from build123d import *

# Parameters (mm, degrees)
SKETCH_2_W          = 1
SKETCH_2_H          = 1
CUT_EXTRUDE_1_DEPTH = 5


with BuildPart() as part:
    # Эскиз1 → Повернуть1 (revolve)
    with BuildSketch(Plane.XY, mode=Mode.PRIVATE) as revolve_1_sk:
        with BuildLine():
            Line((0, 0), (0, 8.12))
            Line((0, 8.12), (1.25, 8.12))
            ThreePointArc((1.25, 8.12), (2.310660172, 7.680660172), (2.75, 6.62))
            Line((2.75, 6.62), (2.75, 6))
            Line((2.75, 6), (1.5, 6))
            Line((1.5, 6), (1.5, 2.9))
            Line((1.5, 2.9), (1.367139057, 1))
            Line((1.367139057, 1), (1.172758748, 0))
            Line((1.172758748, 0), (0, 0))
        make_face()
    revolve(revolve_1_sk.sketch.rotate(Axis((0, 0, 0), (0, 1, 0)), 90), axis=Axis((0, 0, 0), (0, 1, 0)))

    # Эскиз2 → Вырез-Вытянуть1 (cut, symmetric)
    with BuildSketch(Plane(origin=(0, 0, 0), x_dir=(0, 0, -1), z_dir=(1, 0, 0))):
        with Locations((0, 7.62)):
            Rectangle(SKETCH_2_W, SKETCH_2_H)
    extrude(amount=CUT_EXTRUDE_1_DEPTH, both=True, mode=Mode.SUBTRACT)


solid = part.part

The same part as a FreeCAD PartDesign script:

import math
import FreeCAD as App
import Part
import Sketcher

V = App.Vector
Q = App.Units.Quantity

doc = App.newDocument("Part")
body = doc.addObject("PartDesign::Body", "Body")

# Sketch on XY plane
sketch1 = body.newObject("Sketcher::SketchObject", "Sketch")
sketch1.AttachmentSupport = (doc.getObject("XY_Plane"), [""])
sketch1.MapMode = "FlatFace"
sketch1.addGeometry([
    Part.LineSegment(V(0, 8.1, 0), V(0, 0, 0)),  # 0
    Part.LineSegment(V(0, 0, 0), V(1.2, 0, 0)),  # 1
    Part.LineSegment(V(1.2, 0, 0), V(1.4, 1, 0)),  # 2
    Part.LineSegment(V(1.4, 1, 0), V(1.5, 2.9, 0)),  # 3
    Part.LineSegment(V(1.5, 2.9, 0), V(1.5, 6, 0)),  # 4
    Part.LineSegment(V(1.5, 6, 0), V(2.8, 6, 0)),  # 5
    Part.LineSegment(V(2.8, 6, 0), V(2.8, 6.6, 0)),  # 6
    Part.ArcOfCircle(Part.Circle(V(1.3, 6.6, 0), V(0, 0, 1), 1.5), math.radians(0), math.radians(90)),  # 7
    Part.LineSegment(V(1.2, 8.1, 0), V(0, 8.1, 0)),  # 8
], False)
sketch1.addConstraint([
    Sketcher.Constraint("Coincident", 0, 2, 1, 1),
    Sketcher.Constraint("Coincident", 1, 2, 2, 1),
    Sketcher.Constraint("Coincident", 2, 2, 3, 1),
    Sketcher.Constraint("Coincident", 3, 2, 4, 1),
    Sketcher.Constraint("Coincident", 4, 2, 5, 1),
    Sketcher.Constraint("Coincident", 5, 2, 6, 1),
    Sketcher.Constraint("Tangent", 6, 2, 7, 1),
    Sketcher.Constraint("Tangent", 7, 2, 8, 1),
    Sketcher.Constraint("Coincident", 8, 2, 0, 1),
    Sketcher.Constraint("Vertical", 0),
    Sketcher.Constraint("Horizontal", 1),
    Sketcher.Constraint("Vertical", 4),
    Sketcher.Constraint("Horizontal", 5),
    Sketcher.Constraint("Vertical", 6),
    Sketcher.Constraint("Horizontal", 8),
    Sketcher.Constraint("Coincident", 0, 2, -1, 1),
    Sketcher.Constraint("Equal", 5, 8),
    Sketcher.Constraint("Radius", 7, Q("1.5 mm")),
    Sketcher.Constraint("Angle", 2, Q("79 deg")),
    Sketcher.Constraint("Angle", 3, Q("86 deg")),
    Sketcher.Constraint("DistanceY", 4, 1, 4, 2, Q("3.1 mm")),
    Sketcher.Constraint("DistanceY", -1, 1, 2, 2, Q("1 mm")),
    Sketcher.Constraint("DistanceY", -1, 1, 4, 2, Q("6 mm")),
    Sketcher.Constraint("DistanceX", 5, 1, 5, 2, Q("1.25 mm")),
    Sketcher.Constraint("DistanceY", 0, 2, 0, 1, Q("8.12 mm")),
])
revolution = body.newObject("PartDesign::Revolution", "Revolution")
revolution.Profile = sketch1
revolution.ReferenceAxis = (sketch1, ["V_Axis"])
revolution.Angle = 360

# Sketch on YZ plane
sketch2 = body.newObject("Sketcher::SketchObject", "Sketch001")
sketch2.AttachmentSupport = (doc.getObject("YZ_Plane"), [""])
sketch2.MapMode = "FlatFace"
sketch2.addGeometry([
    Part.LineSegment(V(8.1, 0.5, 0), V(7.1, 0.5, 0)),
    Part.LineSegment(V(7.1, 0.5, 0), V(7.1, -0.5, 0)),
    Part.LineSegment(V(7.1, -0.5, 0), V(8.1, -0.5, 0)),
    Part.LineSegment(V(8.1, -0.5, 0), V(8.1, 0.5, 0)),
], False)
sketch2.addConstraint([
    Sketcher.Constraint("Coincident", 0, 2, 1, 1),
    Sketcher.Constraint("Coincident", 1, 2, 2, 1),
    Sketcher.Constraint("Coincident", 2, 2, 3, 1),
    Sketcher.Constraint("Coincident", 3, 2, 0, 1),
    Sketcher.Constraint("Horizontal", 0),
    Sketcher.Constraint("Vertical", 1),
    Sketcher.Constraint("Horizontal", 2),
    Sketcher.Constraint("Vertical", 3),
    Sketcher.Constraint("Equal", 2, 1),
    Sketcher.Constraint("DistanceX", 0, 2, 0, 1, Q("1 mm")),
    Sketcher.Constraint("DistanceY", -1, 1, 0, 2, Q("0.5 mm")),
    Sketcher.Constraint("DistanceX", -1, 1, 0, 2, Q("7.12 mm")),
])
pocket1 = body.newObject("PartDesign::Pocket", "Pocket")
pocket1.Profile = sketch2
pocket1.Length = 10
pocket1.Midplane = True

doc.recompute()
